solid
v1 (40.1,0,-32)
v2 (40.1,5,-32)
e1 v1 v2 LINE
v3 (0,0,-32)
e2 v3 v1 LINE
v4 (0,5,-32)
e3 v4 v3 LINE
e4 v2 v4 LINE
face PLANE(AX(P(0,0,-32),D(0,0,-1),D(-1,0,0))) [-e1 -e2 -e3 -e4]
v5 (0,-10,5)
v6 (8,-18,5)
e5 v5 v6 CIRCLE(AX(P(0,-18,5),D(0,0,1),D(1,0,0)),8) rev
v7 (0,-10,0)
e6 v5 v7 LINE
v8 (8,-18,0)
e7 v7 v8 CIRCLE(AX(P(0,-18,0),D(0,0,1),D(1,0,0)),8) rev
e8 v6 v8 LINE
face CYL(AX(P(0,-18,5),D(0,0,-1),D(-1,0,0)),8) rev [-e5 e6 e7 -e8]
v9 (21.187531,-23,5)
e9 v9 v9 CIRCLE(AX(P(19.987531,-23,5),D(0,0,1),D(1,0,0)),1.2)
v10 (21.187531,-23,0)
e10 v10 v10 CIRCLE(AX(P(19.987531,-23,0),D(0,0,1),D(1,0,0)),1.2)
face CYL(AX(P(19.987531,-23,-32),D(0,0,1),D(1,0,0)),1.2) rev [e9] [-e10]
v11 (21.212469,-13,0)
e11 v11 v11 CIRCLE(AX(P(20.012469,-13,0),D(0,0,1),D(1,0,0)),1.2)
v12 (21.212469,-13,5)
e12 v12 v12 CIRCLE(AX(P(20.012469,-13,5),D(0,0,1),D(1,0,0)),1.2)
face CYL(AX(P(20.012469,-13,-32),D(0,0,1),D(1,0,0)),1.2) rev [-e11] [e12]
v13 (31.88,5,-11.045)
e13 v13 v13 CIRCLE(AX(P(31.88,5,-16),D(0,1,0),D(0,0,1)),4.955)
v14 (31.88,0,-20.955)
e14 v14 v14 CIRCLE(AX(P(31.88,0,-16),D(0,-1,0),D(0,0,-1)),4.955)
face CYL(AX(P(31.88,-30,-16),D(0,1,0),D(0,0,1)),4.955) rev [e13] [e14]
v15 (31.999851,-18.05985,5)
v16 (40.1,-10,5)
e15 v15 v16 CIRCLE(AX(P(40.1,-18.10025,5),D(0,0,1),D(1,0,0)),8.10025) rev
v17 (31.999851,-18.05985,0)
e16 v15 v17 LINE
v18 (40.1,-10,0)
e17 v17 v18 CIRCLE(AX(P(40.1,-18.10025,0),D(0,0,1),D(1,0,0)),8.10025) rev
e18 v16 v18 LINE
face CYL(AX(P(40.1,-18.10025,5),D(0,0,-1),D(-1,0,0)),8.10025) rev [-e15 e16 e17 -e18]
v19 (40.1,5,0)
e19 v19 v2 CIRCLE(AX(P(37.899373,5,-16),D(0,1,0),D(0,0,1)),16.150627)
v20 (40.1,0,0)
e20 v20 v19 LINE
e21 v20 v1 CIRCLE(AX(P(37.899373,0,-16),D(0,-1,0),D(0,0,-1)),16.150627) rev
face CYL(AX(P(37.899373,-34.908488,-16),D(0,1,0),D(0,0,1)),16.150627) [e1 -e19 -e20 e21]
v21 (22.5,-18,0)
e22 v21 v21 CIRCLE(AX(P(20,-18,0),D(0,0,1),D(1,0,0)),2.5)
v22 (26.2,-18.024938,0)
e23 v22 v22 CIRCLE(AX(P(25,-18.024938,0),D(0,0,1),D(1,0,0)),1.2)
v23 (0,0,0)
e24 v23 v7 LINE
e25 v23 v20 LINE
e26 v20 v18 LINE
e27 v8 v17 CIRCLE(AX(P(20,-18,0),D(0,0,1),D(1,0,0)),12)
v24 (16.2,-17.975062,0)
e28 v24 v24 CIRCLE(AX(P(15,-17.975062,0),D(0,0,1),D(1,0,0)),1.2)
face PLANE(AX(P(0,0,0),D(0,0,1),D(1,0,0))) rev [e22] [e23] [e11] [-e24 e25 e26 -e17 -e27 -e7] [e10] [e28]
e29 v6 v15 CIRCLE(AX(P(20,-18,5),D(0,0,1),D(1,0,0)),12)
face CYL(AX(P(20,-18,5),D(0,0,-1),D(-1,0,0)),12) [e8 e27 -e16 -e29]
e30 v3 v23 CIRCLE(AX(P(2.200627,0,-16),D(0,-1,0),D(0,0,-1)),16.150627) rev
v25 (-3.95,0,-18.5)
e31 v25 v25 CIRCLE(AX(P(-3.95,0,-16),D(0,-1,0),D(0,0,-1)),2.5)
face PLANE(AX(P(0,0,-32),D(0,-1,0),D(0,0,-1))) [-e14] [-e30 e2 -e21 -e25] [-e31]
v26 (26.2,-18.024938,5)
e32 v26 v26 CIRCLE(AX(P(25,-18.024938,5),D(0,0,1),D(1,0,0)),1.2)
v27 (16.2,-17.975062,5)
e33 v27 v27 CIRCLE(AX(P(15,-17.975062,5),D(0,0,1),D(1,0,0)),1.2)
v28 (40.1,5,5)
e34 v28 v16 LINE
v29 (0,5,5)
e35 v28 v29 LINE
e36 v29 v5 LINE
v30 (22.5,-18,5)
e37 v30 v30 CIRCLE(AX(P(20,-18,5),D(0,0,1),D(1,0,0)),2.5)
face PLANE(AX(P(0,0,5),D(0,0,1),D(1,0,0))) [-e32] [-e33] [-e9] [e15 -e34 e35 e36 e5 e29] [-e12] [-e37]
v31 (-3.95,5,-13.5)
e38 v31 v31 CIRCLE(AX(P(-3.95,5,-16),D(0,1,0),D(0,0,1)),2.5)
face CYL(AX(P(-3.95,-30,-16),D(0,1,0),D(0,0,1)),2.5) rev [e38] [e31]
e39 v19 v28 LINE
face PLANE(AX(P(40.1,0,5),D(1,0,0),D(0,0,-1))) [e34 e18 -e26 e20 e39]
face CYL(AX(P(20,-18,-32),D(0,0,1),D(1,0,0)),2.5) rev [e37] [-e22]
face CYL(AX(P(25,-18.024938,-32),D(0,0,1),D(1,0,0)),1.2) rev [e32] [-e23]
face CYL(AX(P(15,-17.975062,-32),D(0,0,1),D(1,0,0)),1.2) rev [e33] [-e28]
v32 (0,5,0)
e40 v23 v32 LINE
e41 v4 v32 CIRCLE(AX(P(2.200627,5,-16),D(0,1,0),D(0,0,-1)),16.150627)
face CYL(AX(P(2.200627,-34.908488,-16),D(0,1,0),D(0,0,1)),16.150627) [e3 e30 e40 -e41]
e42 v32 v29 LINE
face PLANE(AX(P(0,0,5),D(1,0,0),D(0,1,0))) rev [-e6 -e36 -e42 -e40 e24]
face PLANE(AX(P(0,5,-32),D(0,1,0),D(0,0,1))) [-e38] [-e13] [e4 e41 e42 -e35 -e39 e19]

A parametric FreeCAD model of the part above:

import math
import FreeCAD as App
import Part
import Sketcher


def add_polygon(sketch, points):
    """Adds a closed chain of lines whose ends are joined by coincident constraints."""
    first, n = sketch.GeometryCount, len(points)
    for a, b in zip(points, points[1:] + points[:1]):
        sketch.addGeometry(Part.LineSegment(App.Vector(*a, 0), App.Vector(*b, 0)), False)
    for i in range(n):
        sketch.addConstraint(Sketcher.Constraint("Coincident", first + i, 2, first + (i + 1) % n, 1))

doc = App.newDocument("Part")
params = doc.addObject("Spreadsheet::Sheet", "Params")
for row, (alias, value) in enumerate([
    ("sketch1_radius", "8 mm"),
    ("sketch1_radius2", "12 mm"),
    ("sketch1_height", "10 mm"),
    ("sketch1_width", "40.1 mm"),
    ("pad1_length", "5 mm"),
    ("sketch2_height", "5 mm"),
    ("sketch2_width", "40.1 mm"),
    ("pad2_length", "37 mm"),
    ("sketch3_height", "32 mm"),
    ("pad3_length", "5 mm"),
    ("sketch4_diameter", "5 mm"),
    ("sketch4_diameter2", "2.4 mm"),
    ("sketch5_diameter", "5 mm"),
    ("sketch5_diameter2", "9.91 mm"),
], start=1):
    params.set(f"A{row}", alias)
    params.set(f"B{row}", "=" + value)
    params.setAlias(f"B{row}", alias)

body = doc.addObject("PartDesign::Body", "Body")

# Sketch on XY plane
sketch1 = body.newObject("Sketcher::SketchObject", "Sketch")
sketch1.AttachmentSupport = (doc.getObject("XY_Plane"), [""])
sketch1.MapMode = "FlatFace"
sketch1.addGeometry([
    Part.LineSegment(App.Vector(0, 0, 0), App.Vector(0, -10, 0)),  # 0
    Part.ArcOfCircle(Part.Circle(App.Vector(0, -18, 0), App.Vector(0, 0, 1), 8), math.radians(0), math.radians(90)),  # 1
    Part.ArcOfCircle(Part.Circle(App.Vector(20, -18, 0), App.Vector(0, 0, 1), 12), math.radians(180), math.radians(359.714236)),  # 2
    Part.ArcOfCircle(Part.Circle(App.Vector(40.1, -18.10025, 0), App.Vector(0, 0, 1), 8.10025), math.radians(90), math.radians(179.714236)),  # 3
    Part.LineSegment(App.Vector(40.1, -10, 0), App.Vector(40.1, 0, 0)),  # 4
    Part.LineSegment(App.Vector(40.1, 0, 0), App.Vector(0, 0, 0)),  # 5
], False)
sketch1.addConstraint([
    Sketcher.Constraint("Coincident", 0, 2, 1, 2),
    Sketcher.Constraint("Tangent", 1, 1, 2, 1),
    Sketcher.Constraint("Tangent", 2, 2, 3, 2),
    Sketcher.Constraint("Coincident", 3, 1, 4, 1),
    Sketcher.Constraint("Coincident", 4, 2, 5, 1),
    Sketcher.Constraint("Coincident", 5, 2, 0, 1),
    Sketcher.Constraint("Vertical", 0),
    Sketcher.Constraint("Vertical", 4),
    Sketcher.Constraint("Horizontal", 5),
    Sketcher.Constraint("Coincident", 5, 2, -1, 1),
    Sketcher.Constraint("PointOnObject", 1, 3, -2),
    Sketcher.Constraint("Horizontal", 1, 3, 2, 3),
    Sketcher.Constraint("Horizontal", 0, 2, 3, 1),
    Sketcher.Constraint("Radius", 1, 8.0),
    Sketcher.Constraint("Radius", 2, 12.0),
    Sketcher.Constraint("DistanceY", 0, 2, 0, 1, 10.0),
    Sketcher.Constraint("DistanceX", 5, 2, 5, 1, 40.1),
    Sketcher.Constraint("DistanceX", -1, 1, 3, 3, 40.1),
])
sketch1.setExpression("Constraints[13]", "Params.sketch1_radius")
sketch1.setExpression("Constraints[14]", "Params.sketch1_radius2")
sketch1.setExpression("Constraints[15]", "Params.sketch1_height")
sketch1.setExpression("Constraints[16]", "Params.sketch1_width")
pad1 = body.newObject("PartDesign::Pad", "Pad")
pad1.Profile = sketch1
pad1.setExpression("Length", "Params.pad1_length")

# Sketch on XY plane
sketch2 = body.newObject("Sketcher::SketchObject", "Sketch001")
sketch2.AttachmentSupport = (doc.getObject("XY_Plane"), [""])
sketch2.MapMode = "FlatFace"
sketch2.AttachmentOffset = App.Placement(App.Vector(0, 0, 5), App.Rotation())
add_polygon(sketch2, [(0, 5), (0, 0), (40.1, 0), (40.1, 5)])  # lines 0-3
sketch2.addConstraint([
    Sketcher.Constraint("Vertical", 0),
    Sketcher.Constraint("Horizontal", 1),
    Sketcher.Constraint("Vertical", 2),
    Sketcher.Constraint("Horizontal", 3),
    Sketcher.Constraint("Coincident", 0, 2, -1, 1),
    Sketcher.Constraint("DistanceY", 0, 2, 0, 1, 5.0),
    Sketcher.Constraint("DistanceX", 1, 1, 1, 2, 40.1),
])
sketch2.setExpression("Constraints[9]", "Params.sketch2_height")
sketch2.setExpression("Constraints[10]", "Params.sketch2_width")
pad2 = body.newObject("PartDesign::Pad", "Pad001")
pad2.Profile = sketch2
pad2.setExpression("Length", "Params.pad2_length")
pad2.Reversed = True

# Sketch on XZ plane
sketch3 = body.newObject("Sketcher::SketchObject", "Sketch002")
sketch3.AttachmentSupport = (doc.getObject("XZ_Plane"), [""])
sketch3.MapMode = "FlatFace"
sketch3.AttachmentOffset = App.Placement(App.Vector(0, 0, -5), App.Rotation())
sketch3.addGeometry([
    Part.LineSegment(App.Vector(0, 0, 0), App.Vector(0, -32, 0)),
    Part.ArcOfCircle(Part.Circle(App.Vector(2.200627, -16, 0), App.Vector(0, 0, 1), 16.150627), math.radians(97.831281), math.radians(262.168719)),
    Part.LineSegment(App.Vector(40.1, -32, 0), App.Vector(40.1, 0, 0)),
    Part.ArcOfCircle(Part.Circle(App.Vector(37.899373, -16, 0), App.Vector(0, 0, 1), 16.150627), math.radians(-82.168719), math.radians(82.168719)),
], False)
sketch3.addConstraint([
    Sketcher.Constraint("Coincident", 0, 1, 1, 1),
    Sketcher.Constraint("Coincident", 1, 2, 0, 2),
    Sketcher.Constraint("Coincident", 2, 1, 3, 1),
    Sketcher.Constraint("Coincident", 3, 2, 2, 2),
    Sketcher.Constraint("Vertical", 0),
    Sketcher.Constraint("Vertical", 2),
    Sketcher.Constraint("Coincident", 0, 1, -1, 1),
    Sketcher.Constraint("Equal", 1, 3),
    Sketcher.Constraint("PointOnObject", 3, 2, -1),
    Sketcher.Constraint("Horizontal", 1, 3, 3, 3),
    Sketcher.Constraint("DistanceY", 0, 2, 0, 1, 32.0),
    Sketcher.Constraint("DistanceX", -1, 1, 2, 1, 40.1),
    Sketcher.Constraint("Radius", 1, 16.150627),
])
sketch3.setExpression("Constraints[10]", "Params.sketch3_height")
pad3 = body.newObject("PartDesign::Pad", "Pad002")
pad3.Profile = sketch3
pad3.setExpression("Length", "Params.pad3_length")

# Sketch on XY plane
sketch4 = body.newObject("Sketcher::SketchObject", "Sketch003")
sketch4.AttachmentSupport = (doc.getObject("XY_Plane"), [""])
sketch4.MapMode = "FlatFace"
sketch4.AttachmentOffset = App.Placement(App.Vector(0, 0, 5), App.Rotation())
sketch4.addGeometry([
    Part.Circle(App.Vector(20.012469, -13, 0), App.Vector(0, 0, 1), 1.2),  # 0
    Part.Circle(App.Vector(20, -18, 0), App.Vector(0, 0, 1), 2.5),  # 1
    Part.Circle(App.Vector(15, -17.975062, 0), App.Vector(0, 0, 1), 1.2),  # 2
    Part.Circle(App.Vector(19.987531, -23, 0), App.Vector(0, 0, 1), 1.2),  # 3
    Part.Circle(App.Vector(25, -18.024938, 0), App.Vector(0, 0, 1), 1.2),  # 4
], False)
sketch4.addConstraint([
    Sketcher.Constraint("Equal", 0, 2),
    Sketcher.Constraint("Equal", 2, 3),
    Sketcher.Constraint("Equal", 3, 4),
    Sketcher.Constraint("Diameter", 1, 5.0),
    Sketcher.Constraint("Diameter", 0, 2.4),
    Sketcher.Constraint("DistanceY", 0, 3, -1, 1, 13.0),
    Sketcher.Constraint("DistanceX", -1, 1, 1, 3, 20.0),
    Sketcher.Constraint("DistanceY", 1, 3, -1, 1, 18.0),
    Sketcher.Constraint("DistanceX", -1, 1, 2, 3, 15.0),
    Sketcher.Constraint("DistanceY", 3, 3, -1, 1, 23.0),
    Sketcher.Constraint("DistanceX", -1, 1, 4, 3, 25.0),
    Sketcher.Constraint("DistanceX", -1, 1, 0, 3, 20.012469),
    Sketcher.Constraint("DistanceX", -1, 1, 3, 3, 19.987531),
    Sketcher.Constraint("DistanceY", 2, 3, -1, 1, 17.975062),
    Sketcher.Constraint("DistanceY", 4, 3, -1, 1, 18.024938),
])
sketch4.setExpression("Constraints[3]", "Params.sketch4_diameter")
sketch4.setExpression("Constraints[4]", "Params.sketch4_diameter2")
pocket1 = body.newObject("PartDesign::Pocket", "Pocket")
pocket1.Profile = sketch4
pocket1.Type = "ThroughAll"

# Sketch on XZ plane
sketch5 = body.newObject("Sketcher::SketchObject", "Sketch004")
sketch5.AttachmentSupport = (doc.getObject("XZ_Plane"), [""])
sketch5.MapMode = "FlatFace"
sketch5.AttachmentOffset = App.Placement(App.Vector(0, 0, -5), App.Rotation())
sketch5.addGeometry([
    Part.Circle(App.Vector(31.88, -16, 0), App.Vector(0, 0, 1), 4.955),
    Part.Circle(App.Vector(-3.95, -16, 0), App.Vector(0, 0, 1), 2.5),
], False)
sketch5.addConstraint([
    Sketcher.Constraint("Horizontal", 0, 3, 1, 3),
    Sketcher.Constraint("Diameter", 1, 5.0),
    Sketcher.Constraint("Diameter", 0, 9.91),
    Sketcher.Constraint("DistanceY", 0, 3, -1, 1, 16.0),
    Sketcher.Constraint("DistanceX", -1, 1, 0, 3, 31.88),
    Sketcher.Constraint("DistanceX", 1, 3, -1, 1, 3.95),
])
sketch5.setExpression("Constraints[1]", "Params.sketch5_diameter")
sketch5.setExpression("Constraints[2]", "Params.sketch5_diameter2")
pocket2 = body.newObject("PartDesign::Pocket", "Pocket001")
pocket2.Profile = sketch5
pocket2.Type = "ThroughAll"
pocket2.Reversed = True

doc.recompute()
